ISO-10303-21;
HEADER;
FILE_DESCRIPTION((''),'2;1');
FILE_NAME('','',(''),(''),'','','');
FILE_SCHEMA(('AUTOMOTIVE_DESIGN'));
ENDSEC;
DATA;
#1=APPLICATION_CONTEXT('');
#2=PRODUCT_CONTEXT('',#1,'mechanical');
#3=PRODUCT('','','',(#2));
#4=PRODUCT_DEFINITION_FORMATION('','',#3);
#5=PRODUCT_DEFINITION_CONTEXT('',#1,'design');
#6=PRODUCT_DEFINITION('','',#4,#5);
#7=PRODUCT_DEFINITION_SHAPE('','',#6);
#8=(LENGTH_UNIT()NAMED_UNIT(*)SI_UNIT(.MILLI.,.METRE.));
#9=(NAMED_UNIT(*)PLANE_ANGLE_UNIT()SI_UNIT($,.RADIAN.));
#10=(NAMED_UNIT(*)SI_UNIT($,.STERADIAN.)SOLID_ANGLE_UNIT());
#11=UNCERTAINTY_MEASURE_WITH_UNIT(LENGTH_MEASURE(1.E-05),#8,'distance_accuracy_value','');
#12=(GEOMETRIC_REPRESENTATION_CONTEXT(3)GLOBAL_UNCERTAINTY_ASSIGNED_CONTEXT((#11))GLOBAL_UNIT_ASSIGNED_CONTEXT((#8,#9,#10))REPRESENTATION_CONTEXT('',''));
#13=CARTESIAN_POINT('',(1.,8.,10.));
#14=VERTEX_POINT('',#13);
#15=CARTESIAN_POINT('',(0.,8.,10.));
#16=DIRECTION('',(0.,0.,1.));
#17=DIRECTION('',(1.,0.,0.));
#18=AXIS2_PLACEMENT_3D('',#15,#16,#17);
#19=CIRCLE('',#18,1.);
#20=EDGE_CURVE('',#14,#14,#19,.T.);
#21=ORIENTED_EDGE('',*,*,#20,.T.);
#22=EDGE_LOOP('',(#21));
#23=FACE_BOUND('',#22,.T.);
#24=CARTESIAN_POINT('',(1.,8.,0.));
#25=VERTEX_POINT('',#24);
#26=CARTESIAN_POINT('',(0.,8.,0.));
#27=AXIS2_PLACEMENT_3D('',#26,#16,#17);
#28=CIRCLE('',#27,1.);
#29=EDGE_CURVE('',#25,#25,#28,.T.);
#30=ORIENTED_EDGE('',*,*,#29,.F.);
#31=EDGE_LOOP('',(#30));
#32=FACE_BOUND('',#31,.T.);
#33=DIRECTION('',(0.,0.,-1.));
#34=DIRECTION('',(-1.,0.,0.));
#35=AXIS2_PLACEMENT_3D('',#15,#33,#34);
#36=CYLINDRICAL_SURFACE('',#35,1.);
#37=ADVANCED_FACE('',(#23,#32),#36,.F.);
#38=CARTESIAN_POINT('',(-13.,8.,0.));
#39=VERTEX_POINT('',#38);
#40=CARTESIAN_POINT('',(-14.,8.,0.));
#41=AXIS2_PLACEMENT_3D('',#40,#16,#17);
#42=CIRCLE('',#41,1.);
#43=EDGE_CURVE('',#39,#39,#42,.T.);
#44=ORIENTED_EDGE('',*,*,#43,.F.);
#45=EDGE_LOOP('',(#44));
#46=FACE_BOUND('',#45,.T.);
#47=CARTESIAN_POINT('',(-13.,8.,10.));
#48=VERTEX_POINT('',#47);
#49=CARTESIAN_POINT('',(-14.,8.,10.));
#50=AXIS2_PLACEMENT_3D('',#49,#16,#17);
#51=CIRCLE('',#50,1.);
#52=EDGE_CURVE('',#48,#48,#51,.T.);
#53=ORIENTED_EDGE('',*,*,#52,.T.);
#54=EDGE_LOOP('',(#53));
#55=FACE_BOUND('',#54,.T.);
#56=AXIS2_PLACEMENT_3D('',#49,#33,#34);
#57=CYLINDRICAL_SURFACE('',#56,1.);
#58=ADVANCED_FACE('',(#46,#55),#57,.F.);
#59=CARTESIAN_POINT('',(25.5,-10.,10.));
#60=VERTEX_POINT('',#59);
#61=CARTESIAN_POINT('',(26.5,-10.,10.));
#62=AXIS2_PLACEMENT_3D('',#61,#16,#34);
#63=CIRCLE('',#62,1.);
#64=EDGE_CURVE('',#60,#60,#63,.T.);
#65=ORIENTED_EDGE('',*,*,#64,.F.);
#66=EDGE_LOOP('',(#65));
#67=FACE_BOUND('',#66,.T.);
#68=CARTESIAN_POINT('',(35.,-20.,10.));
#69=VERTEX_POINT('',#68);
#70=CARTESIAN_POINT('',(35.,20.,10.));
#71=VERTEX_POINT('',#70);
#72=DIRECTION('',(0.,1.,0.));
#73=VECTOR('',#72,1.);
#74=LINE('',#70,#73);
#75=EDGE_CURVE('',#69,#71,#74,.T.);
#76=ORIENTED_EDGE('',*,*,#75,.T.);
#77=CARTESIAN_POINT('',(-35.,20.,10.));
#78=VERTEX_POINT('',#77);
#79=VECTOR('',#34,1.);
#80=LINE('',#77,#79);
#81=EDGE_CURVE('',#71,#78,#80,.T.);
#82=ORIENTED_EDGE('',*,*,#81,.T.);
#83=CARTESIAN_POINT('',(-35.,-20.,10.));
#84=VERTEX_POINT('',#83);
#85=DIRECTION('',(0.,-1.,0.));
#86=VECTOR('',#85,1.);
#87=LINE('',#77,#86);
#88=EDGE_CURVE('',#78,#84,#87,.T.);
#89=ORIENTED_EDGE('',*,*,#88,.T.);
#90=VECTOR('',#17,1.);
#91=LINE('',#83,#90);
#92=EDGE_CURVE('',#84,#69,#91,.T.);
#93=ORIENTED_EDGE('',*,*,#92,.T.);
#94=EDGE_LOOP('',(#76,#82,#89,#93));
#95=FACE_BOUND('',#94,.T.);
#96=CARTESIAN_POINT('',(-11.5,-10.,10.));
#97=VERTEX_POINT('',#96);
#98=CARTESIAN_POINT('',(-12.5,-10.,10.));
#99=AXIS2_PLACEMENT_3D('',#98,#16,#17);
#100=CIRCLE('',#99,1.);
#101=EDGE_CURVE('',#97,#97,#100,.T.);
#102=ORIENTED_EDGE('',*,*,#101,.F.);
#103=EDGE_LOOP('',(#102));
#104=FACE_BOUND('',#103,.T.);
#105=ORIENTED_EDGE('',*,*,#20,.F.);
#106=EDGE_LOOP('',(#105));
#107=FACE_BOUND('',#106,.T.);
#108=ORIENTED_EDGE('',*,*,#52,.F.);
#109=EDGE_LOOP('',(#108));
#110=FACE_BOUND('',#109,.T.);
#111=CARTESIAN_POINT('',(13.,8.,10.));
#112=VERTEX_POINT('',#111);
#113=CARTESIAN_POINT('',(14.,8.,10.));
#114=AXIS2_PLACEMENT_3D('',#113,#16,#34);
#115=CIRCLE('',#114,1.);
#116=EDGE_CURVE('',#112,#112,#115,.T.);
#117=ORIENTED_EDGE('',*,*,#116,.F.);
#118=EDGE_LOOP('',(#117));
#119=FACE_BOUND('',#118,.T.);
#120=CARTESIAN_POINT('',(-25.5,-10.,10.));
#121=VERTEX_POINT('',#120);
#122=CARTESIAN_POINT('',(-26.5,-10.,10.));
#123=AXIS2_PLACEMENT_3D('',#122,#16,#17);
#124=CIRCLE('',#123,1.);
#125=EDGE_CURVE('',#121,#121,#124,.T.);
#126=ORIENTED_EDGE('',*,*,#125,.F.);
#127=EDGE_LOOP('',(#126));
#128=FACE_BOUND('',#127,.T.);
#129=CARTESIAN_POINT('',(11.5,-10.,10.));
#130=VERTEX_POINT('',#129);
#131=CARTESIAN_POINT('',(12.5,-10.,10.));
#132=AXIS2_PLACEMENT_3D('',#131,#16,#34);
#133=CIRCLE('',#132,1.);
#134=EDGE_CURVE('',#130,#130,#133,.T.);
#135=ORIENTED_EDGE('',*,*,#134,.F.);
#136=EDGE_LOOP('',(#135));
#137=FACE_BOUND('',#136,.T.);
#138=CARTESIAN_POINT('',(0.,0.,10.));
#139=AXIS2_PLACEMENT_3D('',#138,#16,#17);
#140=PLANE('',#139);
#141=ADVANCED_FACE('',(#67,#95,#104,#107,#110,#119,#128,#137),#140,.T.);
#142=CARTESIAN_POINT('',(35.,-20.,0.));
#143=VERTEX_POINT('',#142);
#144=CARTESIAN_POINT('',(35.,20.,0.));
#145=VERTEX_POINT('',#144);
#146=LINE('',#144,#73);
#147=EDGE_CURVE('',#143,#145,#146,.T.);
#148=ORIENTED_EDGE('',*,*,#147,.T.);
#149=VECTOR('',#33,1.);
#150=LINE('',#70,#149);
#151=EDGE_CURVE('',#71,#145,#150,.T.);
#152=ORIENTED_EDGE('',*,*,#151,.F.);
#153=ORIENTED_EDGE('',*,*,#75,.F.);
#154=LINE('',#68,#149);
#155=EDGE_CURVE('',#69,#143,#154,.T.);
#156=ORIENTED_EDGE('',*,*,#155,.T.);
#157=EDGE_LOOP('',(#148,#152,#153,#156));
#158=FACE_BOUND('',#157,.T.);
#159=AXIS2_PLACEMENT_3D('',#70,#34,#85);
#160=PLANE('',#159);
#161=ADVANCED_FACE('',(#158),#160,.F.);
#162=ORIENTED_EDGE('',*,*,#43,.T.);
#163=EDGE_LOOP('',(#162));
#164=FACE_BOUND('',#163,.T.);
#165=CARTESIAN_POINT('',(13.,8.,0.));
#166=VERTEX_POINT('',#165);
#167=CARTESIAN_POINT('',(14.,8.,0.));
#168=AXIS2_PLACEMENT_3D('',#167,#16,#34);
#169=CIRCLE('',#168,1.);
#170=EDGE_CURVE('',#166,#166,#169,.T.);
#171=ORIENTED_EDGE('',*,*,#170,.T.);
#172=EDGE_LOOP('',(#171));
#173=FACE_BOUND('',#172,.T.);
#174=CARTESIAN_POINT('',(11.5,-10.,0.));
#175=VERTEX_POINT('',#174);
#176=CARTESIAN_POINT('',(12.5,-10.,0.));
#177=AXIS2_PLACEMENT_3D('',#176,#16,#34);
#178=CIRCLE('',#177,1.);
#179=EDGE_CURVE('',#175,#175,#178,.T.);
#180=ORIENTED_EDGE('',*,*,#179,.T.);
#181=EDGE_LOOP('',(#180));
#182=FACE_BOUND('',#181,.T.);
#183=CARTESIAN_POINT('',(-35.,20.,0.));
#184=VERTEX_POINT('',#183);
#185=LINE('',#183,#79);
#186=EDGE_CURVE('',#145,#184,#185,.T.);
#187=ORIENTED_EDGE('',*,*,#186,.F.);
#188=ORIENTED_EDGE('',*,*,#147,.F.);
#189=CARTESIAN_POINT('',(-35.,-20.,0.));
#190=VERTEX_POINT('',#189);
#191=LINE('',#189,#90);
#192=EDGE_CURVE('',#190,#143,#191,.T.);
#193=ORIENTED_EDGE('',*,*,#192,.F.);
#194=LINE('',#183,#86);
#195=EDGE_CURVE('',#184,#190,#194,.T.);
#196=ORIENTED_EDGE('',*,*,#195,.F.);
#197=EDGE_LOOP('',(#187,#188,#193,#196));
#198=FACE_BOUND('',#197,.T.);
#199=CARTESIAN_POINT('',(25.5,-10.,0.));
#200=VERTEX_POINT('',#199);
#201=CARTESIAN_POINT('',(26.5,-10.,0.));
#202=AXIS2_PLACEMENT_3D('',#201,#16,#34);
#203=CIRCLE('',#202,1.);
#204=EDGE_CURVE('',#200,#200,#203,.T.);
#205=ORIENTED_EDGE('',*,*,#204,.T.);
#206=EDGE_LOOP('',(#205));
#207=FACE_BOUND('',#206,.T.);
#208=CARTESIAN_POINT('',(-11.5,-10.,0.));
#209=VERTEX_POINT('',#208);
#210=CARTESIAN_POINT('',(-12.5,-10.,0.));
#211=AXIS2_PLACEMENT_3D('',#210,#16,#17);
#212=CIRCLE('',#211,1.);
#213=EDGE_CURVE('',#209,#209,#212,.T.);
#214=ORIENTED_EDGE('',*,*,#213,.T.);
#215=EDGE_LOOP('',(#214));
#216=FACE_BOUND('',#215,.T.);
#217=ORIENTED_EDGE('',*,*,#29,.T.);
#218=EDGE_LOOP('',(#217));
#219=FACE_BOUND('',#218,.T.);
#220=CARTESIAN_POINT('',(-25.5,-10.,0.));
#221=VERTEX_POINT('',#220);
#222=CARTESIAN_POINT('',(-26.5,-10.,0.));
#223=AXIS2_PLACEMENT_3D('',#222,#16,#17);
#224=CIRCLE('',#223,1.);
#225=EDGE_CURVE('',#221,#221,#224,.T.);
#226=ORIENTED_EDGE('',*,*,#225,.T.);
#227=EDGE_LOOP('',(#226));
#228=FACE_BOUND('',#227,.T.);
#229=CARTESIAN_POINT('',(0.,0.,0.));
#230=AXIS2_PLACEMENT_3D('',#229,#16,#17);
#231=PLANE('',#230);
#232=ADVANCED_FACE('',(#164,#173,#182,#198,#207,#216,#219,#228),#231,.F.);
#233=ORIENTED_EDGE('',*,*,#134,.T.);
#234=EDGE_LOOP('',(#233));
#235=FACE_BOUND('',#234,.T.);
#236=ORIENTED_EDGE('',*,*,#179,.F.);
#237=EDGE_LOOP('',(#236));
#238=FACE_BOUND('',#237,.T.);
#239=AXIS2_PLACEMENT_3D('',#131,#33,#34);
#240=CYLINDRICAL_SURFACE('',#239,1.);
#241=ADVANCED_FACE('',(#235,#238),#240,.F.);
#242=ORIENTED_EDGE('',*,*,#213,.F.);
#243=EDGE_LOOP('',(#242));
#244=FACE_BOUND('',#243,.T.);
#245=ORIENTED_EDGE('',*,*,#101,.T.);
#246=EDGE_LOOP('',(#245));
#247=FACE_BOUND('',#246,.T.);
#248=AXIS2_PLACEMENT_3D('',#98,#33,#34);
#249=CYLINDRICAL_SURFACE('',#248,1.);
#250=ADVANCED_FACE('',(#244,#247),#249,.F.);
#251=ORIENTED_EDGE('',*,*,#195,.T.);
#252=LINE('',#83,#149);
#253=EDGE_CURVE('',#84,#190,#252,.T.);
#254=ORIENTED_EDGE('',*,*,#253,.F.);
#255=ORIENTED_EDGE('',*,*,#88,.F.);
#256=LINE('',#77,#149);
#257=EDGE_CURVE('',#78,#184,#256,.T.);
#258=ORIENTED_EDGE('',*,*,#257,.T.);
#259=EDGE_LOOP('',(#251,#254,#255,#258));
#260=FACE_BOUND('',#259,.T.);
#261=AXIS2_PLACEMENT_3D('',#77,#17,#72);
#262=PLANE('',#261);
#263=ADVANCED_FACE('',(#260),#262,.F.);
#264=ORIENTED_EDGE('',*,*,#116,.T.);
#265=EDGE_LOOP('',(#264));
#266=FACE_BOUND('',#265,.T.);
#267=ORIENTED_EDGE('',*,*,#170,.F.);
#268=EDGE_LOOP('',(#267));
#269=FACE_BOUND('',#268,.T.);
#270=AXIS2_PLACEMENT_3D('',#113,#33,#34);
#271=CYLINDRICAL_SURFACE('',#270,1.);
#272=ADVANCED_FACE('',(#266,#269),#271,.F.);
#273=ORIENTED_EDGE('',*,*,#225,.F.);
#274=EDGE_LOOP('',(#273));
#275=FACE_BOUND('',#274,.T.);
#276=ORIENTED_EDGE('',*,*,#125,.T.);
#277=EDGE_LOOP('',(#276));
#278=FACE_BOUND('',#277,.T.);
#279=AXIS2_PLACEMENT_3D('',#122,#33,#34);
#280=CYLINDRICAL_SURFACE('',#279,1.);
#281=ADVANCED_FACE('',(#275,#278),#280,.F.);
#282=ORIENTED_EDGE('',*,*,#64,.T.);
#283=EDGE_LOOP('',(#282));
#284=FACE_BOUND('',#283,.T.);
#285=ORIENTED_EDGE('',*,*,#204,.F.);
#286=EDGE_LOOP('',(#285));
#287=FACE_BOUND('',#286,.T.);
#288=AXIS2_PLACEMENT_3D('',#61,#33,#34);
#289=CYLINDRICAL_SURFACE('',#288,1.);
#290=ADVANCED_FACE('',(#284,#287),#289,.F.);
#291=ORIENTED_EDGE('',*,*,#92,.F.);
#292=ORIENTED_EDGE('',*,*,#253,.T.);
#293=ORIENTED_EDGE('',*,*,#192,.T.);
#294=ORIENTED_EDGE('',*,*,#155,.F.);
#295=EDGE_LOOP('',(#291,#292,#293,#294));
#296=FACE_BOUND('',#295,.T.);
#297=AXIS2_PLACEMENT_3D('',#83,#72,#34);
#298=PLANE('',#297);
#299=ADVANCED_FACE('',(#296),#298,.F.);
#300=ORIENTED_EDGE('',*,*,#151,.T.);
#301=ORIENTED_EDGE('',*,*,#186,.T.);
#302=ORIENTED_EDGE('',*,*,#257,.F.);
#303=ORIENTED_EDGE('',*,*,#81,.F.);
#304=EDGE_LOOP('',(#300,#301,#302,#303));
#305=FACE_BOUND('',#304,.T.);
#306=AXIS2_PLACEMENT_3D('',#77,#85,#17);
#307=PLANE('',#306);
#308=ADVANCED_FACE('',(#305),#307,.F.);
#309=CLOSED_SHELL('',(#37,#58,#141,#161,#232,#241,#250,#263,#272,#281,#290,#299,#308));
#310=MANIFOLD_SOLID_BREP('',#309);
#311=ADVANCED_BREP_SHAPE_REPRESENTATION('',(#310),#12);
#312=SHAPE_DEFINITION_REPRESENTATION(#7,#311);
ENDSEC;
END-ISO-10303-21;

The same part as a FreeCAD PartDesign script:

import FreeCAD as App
import Part
import Sketcher
from FreeCAD import Vector

doc = App.newDocument("Part")
params = doc.addObject("Spreadsheet::Sheet", "Params")
for row, (alias, value) in enumerate([
    ("sketch1_diameter", "2 mm"),
    ("sketch1_width", "70 mm"),
    ("sketch1_height", "40 mm"),
    ("pad1_length", "10 mm"),
], start=1):
    params.set(f"A{row}", alias)
    params.set(f"B{row}", "=" + value)
    params.setAlias(f"B{row}", alias)

body = doc.addObject("PartDesign::Body", "Body")

sketch1 = doc.addObject("Sketcher::SketchObject", "Sketch")
body.addObject(sketch1)
sketch1.AttachmentSupport = (doc.XY_Plane, [""])
sketch1.MapMode = "FlatFace"
sketch1.addGeometry(Part.LineSegment(Vector(-35, 20, 0), Vector(-35, -20, 0)), False)
sketch1.addGeometry(Part.LineSegment(Vector(-35, -20, 0), Vector(35, -20, 0)), False)
sketch1.addGeometry(Part.LineSegment(Vector(35, -20, 0), Vector(35, 20, 0)), False)
sketch1.addGeometry(Part.LineSegment(Vector(35, 20, 0), Vector(-35, 20, 0)), False)
sketch1.addGeometry(Part.Circle(Vector(-26.5, -10, 0), Vector(0, 0, 1), 1), False)
sketch1.addGeometry(Part.Circle(Vector(-12.5, -10, 0), Vector(0, 0, 1), 1), False)
sketch1.addGeometry(Part.Circle(Vector(12.5, -10, 0), Vector(0, 0, 1), 1), False)
sketch1.addGeometry(Part.Circle(Vector(26.5, -10, 0), Vector(0, 0, 1), 1), False)
sketch1.addGeometry(Part.Circle(Vector(-14, 8, 0), Vector(0, 0, 1), 1), False)
sketch1.addGeometry(Part.Circle(Vector(0, 8, 0), Vector(0, 0, 1), 1), False)
sketch1.addGeometry(Part.Circle(Vector(14, 8, 0), Vector(0, 0, 1), 1), False)
sketch1.addConstraint(Sketcher.Constraint("Coincident", 0, 2, 1, 1))
sketch1.addConstraint(Sketcher.Constraint("Coincident", 1, 2, 2, 1))
sketch1.addConstraint(Sketcher.Constraint("Coincident", 2, 2, 3, 1))
sketch1.addConstraint(Sketcher.Constraint("Coincident", 3, 2, 0, 1))
sketch1.addConstraint(Sketcher.Constraint("Vertical", 0))
sketch1.addConstraint(Sketcher.Constraint("Horizontal", 1))
sketch1.addConstraint(Sketcher.Constraint("Vertical", 2))
sketch1.addConstraint(Sketcher.Constraint("Horizontal", 3))
sketch1.addConstraint(Sketcher.Constraint("Equal", 4, 5))
sketch1.addConstraint(Sketcher.Constraint("Equal", 5, 6))
sketch1.addConstraint(Sketcher.Constraint("Equal", 6, 7))
sketch1.addConstraint(Sketcher.Constraint("Equal", 7, 8))
sketch1.addConstraint(Sketcher.Constraint("Equal", 8, 9))
sketch1.addConstraint(Sketcher.Constraint("Equal", 9, 10))
sketch1.addConstraint(Sketcher.Constraint("Symmetric", 0, 2, 2, 2, -1, 1))
sketch1.addConstraint(Sketcher.Constraint("Symmetric", 5, 3, 6, 3, -2))
sketch1.addConstraint(Sketcher.Constraint("Symmetric", 4, 3, 7, 3, -2))
sketch1.addConstraint(Sketcher.Constraint("Symmetric", 8, 3, 10, 3, -2))
sketch1.addConstraint(Sketcher.Constraint("PointOnObject", 9, 3, -2))
sketch1.addConstraint(Sketcher.Constraint("Horizontal", 4, 3, 5, 3))
sketch1.addConstraint(Sketcher.Constraint("Horizontal", 8, 3, 9, 3))
sketch1.addConstraint(Sketcher.Constraint("Diameter", 4, 2.0))
sketch1.addConstraint(Sketcher.Constraint("DistanceX", 1, 1, 1, 2, 70.0))
sketch1.addConstraint(Sketcher.Constraint("DistanceY", 0, 2, 0, 1, 40.0))
sketch1.addConstraint(Sketcher.Constraint("DistanceY", 4, 3, -1, 1, 10.0))
sketch1.addConstraint(Sketcher.Constraint("DistanceX", 8, 3, -1, 1, 14.0))
sketch1.addConstraint(Sketcher.Constraint("DistanceY", -1, 1, 8, 3, 8.0))
sketch1.addConstraint(Sketcher.Constraint("DistanceX", 4, 3, 5, 3, 14.0))
sketch1.addConstraint(Sketcher.Constraint("DistanceX", 5, 3, 6, 3, 25.0))
sketch1.setExpression("Constraints[21]", "Params.sketch1_diameter")
sketch1.setExpression("Constraints[22]", "Params.sketch1_width")
sketch1.setExpression("Constraints[23]", "Params.sketch1_height")
pad1 = doc.addObject("PartDesign::Pad", "Pad")
body.addObject(pad1)
pad1.Profile = sketch1
pad1.setExpression("Length", "Params.pad1_length")

doc.recompute()
